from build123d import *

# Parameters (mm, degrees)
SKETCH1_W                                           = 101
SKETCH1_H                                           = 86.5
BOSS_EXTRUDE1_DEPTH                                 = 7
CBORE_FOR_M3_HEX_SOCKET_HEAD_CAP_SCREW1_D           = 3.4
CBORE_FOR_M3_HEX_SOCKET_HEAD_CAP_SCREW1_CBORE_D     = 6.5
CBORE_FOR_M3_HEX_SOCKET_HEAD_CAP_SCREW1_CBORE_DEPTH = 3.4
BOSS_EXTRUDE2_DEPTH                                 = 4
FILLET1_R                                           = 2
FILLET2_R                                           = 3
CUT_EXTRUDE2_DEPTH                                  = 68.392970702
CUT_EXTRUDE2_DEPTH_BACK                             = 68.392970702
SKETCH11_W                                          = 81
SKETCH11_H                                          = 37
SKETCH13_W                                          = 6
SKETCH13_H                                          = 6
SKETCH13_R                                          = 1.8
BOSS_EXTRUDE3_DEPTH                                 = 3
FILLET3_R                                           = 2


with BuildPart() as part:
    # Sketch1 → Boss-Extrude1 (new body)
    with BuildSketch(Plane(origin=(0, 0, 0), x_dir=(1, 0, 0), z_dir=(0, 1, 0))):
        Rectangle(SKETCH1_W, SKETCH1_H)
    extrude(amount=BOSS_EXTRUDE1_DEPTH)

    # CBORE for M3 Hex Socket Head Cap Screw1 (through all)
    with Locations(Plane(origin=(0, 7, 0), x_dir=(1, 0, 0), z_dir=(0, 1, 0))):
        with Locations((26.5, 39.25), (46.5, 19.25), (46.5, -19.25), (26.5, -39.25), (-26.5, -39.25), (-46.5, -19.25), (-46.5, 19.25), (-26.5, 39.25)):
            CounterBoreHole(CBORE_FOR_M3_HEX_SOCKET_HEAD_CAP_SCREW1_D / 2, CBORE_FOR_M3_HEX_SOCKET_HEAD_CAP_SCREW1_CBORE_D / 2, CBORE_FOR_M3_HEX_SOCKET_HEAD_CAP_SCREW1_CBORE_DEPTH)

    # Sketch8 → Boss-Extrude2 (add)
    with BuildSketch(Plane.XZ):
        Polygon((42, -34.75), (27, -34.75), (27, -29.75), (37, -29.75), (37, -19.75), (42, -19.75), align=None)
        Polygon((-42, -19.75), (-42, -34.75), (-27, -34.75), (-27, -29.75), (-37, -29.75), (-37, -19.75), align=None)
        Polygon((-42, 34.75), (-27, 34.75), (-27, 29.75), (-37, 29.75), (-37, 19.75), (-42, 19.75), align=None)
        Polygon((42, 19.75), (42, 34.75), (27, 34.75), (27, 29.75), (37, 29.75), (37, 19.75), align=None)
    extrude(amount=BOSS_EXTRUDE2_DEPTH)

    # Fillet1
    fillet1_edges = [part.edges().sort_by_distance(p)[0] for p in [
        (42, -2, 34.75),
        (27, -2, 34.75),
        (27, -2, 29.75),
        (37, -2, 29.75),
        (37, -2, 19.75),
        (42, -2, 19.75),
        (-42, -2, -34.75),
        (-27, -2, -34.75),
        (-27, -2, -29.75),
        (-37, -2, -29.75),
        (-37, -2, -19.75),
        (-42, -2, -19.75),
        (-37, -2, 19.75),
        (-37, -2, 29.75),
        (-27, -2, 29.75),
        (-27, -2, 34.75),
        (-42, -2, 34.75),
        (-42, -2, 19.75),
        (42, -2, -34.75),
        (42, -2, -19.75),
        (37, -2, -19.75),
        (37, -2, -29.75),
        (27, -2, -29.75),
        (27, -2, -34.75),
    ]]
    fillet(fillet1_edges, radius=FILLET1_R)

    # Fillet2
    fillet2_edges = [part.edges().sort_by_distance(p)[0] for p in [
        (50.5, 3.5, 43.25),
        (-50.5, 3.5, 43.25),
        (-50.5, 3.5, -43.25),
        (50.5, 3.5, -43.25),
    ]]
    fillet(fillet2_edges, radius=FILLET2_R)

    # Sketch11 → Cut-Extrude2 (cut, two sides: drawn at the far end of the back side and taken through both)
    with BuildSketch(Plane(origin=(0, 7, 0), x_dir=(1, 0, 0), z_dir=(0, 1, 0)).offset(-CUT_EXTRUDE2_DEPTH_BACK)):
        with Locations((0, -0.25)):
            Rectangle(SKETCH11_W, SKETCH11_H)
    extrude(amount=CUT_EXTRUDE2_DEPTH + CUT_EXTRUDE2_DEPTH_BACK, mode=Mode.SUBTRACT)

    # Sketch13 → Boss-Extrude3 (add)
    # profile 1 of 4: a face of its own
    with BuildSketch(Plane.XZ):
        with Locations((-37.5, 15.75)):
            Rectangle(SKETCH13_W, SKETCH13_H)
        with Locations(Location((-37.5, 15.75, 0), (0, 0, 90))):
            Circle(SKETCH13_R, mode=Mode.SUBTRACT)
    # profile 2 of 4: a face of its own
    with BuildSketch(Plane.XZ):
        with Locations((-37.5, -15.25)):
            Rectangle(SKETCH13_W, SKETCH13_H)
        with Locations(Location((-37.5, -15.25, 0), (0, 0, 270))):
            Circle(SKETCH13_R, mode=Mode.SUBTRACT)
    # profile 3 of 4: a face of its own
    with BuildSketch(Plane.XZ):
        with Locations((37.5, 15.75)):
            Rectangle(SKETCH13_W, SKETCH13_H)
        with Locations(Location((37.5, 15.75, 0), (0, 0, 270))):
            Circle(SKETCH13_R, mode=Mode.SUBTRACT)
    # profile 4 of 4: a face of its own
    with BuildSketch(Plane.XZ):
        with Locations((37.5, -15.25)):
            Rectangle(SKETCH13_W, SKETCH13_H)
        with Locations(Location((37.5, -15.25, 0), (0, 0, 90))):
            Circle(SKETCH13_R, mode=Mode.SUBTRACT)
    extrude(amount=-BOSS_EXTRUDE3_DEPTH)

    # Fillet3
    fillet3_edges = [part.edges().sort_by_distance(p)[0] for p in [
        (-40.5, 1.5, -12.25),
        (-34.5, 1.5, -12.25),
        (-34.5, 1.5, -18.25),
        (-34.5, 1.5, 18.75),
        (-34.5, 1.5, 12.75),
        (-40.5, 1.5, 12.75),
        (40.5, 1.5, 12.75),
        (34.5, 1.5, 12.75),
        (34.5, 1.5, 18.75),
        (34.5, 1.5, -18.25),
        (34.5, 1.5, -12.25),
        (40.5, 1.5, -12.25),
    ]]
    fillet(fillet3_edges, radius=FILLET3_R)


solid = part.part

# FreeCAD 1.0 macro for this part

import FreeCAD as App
import Part
import Sketcher
from FreeCAD import Vector


def edges_at(feature, points):
    """Names of the edges that pass closest to the given points."""
    edges = feature.Shape.Edges
    near = lambda p: min(range(len(edges)), key=lambda i: edges[i].distToShape(Part.Vertex(*p))[0])
    return sorted({f"Edge{near(p) + 1}" for p in points})


def add_polygon(sketch, points):
    """Adds a closed chain of lines whose ends are joined by coincident constraints."""
    first, n = sketch.GeometryCount, len(points)
    for a, b in zip(points, points[1:] + points[:1]):
        sketch.addGeometry(Part.LineSegment(App.Vector(*a, 0), App.Vector(*b, 0)), False)
    for i in range(n):
        sketch.addConstraint(Sketcher.Constraint("Coincident", first + i, 2, first + (i + 1) % n, 1))

doc = App.newDocument("Part")
body = doc.addObject("PartDesign::Body", "Body")

sketch1 = body.newObject("Sketcher::SketchObject", "Sketch")
sketch1.AttachmentSupport = (doc.getObject("XZ_Plane"), [""])
sketch1.MapMode = "FlatFace"
add_polygon(sketch1, [(-50.5, -43.25), (-50.5, 43.25), (50.5, 43.25), (50.5, -43.25)])
sketch1.addConstraint([
    Sketcher.Constraint("Vertical", 0),
    Sketcher.Constraint("Horizontal", 1),
    Sketcher.Constraint("Vertical", 2),
    Sketcher.Constraint("Horizontal", 3),
    Sketcher.Constraint("Symmetric", 0, 2, 2, 2, -1, 1),
    Sketcher.Constraint("DistanceX", 1, 1, 1, 2, 101.0),
    Sketcher.Constraint("DistanceY", 0, 1, 0, 2, 86.5),
])
pad1 = body.newObject("PartDesign::Pad", "Pad")
pad1.Profile = sketch1
pad1.Length = 7
pad1.Reversed = True

sketch2 = body.newObject("Sketcher::SketchObject", "Sketch001")
sketch2.AttachmentSupport = (doc.getObject("XZ_Plane"), [""])
sketch2.MapMode = "FlatFace"
sketch2.AttachmentOffset = App.Placement(Vector(0, 0, -7), App.Rotation())
sketch2.addGeometry([
    Part.Circle(Vector(26.5, -39.25, 0), Vector(0, 0, 1), 1.7),
    Part.Circle(Vector(46.5, -19.25, 0), Vector(0, 0, 1), 1.7),
    Part.Circle(Vector(46.5, 19.25, 0), Vector(0, 0, 1), 1.7),
    Part.Circle(Vector(26.5, 39.25, 0), Vector(0, 0, 1), 1.7),
    Part.Circle(Vector(-26.5, 39.25, 0), Vector(0, 0, 1), 1.7),
    Part.Circle(Vector(-46.5, 19.25, 0), Vector(0, 0, 1), 1.7),
    Part.Circle(Vector(-46.5, -19.25, 0), Vector(0, 0, 1), 1.7),
    Part.Circle(Vector(-26.5, -39.25, 0), Vector(0, 0, 1), 1.7),
], False)
sketch2.addConstraint([
    Sketcher.Constraint("Equal", 0, 1),
    Sketcher.Constraint("Equal", 1, 2),
    Sketcher.Constraint("Equal", 2, 3),
    Sketcher.Constraint("Equal", 3, 4),
    Sketcher.Constraint("Equal", 4, 5),
    Sketcher.Constraint("Equal", 5, 6),
    Sketcher.Constraint("Equal", 6, 7),
    Sketcher.Constraint("Symmetric", 0, 3, 4, 3, -1, 1),
    Sketcher.Constraint("Symmetric", 1, 3, 5, 3, -1, 1),
    Sketcher.Constraint("Symmetric", 2, 3, 6, 3, -1, 1),
    Sketcher.Constraint("Symmetric", 3, 3, 7, 3, -1, 1),
    Sketcher.Constraint("Symmetric", 3, 3, 4, 3, -2),
    Sketcher.Constraint("Symmetric", 2, 3, 5, 3, -2),
    Sketcher.Constraint("Diameter", 0, 3.4),
    Sketcher.Constraint("DistanceX", 0, 3, 1, 3, 20.0),
    Sketcher.Constraint("DistanceY", 0, 3, 1, 3, 20.0),
    Sketcher.Constraint("DistanceX", 4, 3, 3, 3, 53.0),
    Sketcher.Constraint("DistanceY", 1, 3, 2, 3, 38.5),
])
doc.recompute()
hole = body.newObject("PartDesign::Hole", "Hole")
hole.Profile = sketch2
hole.ThreadType = "None"
hole.Diameter = 3.4
hole.DepthType = "ThroughAll"
hole.HoleCutType = "Counterbore"
hole.HoleCutDiameter = 6.5
hole.HoleCutDepth = 3.4
hole.Reversed = True

sketch3 = body.newObject("Sketcher::SketchObject", "Sketch002")
sketch3.AttachmentSupport = (doc.getObject("XZ_Plane"), [""])
sketch3.MapMode = "FlatFace"
add_polygon(sketch3, [(27, -34.75), (42, -34.75), (42, -19.75), (37, -19.75), (37, -29.75), (27, -29.75)])
add_polygon(sketch3, [(-42, -19.75), (-42, -34.75), (-27, -34.75), (-27, -29.75), (-37, -29.75), (-37, -19.75)])
add_polygon(sketch3, [(-27, 34.75), (-42, 34.75), (-42, 19.75), (-37, 19.75), (-37, 29.75), (-27, 29.75)])
add_polygon(sketch3, [(42, 19.75), (42, 34.75), (27, 34.75), (27, 29.75), (37, 29.75), (37, 19.75)])
sketch3.addConstraint([
    Sketcher.Constraint("Horizontal", 0),
    Sketcher.Constraint("Vertical", 1),
    Sketcher.Constraint("Horizontal", 2),
    Sketcher.Constraint("Vertical", 3),
    Sketcher.Constraint("Horizontal", 4),
    Sketcher.Constraint("Vertical", 5),
    Sketcher.Constraint("Vertical", 6),
    Sketcher.Constraint("Horizontal", 7),
    Sketcher.Constraint("Vertical", 8),
    Sketcher.Constraint("Horizontal", 9),
    Sketcher.Constraint("Vertical", 10),
    Sketcher.Constraint("Horizontal", 11),
    Sketcher.Constraint("Horizontal", 12),
    Sketcher.Constraint("Vertical", 13),
    Sketcher.Constraint("Horizontal", 14),
    Sketcher.Constraint("Vertical", 15),
    Sketcher.Constraint("Horizontal", 16),
    Sketcher.Constraint("Vertical", 17),
    Sketcher.Constraint("Vertical", 18),
    Sketcher.Constraint("Horizontal", 19),
    Sketcher.Constraint("Vertical", 20),
    Sketcher.Constraint("Horizontal", 21),
    Sketcher.Constraint("Vertical", 22),
    Sketcher.Constraint("Horizontal", 23),
    Sketcher.Constraint("Symmetric", 0, 2, 12, 2, -1, 1),
    Sketcher.Constraint("Symmetric", 2, 2, 14, 2, -1, 1),
    Sketcher.Constraint("Symmetric", 4, 2, 16, 2, -1, 1),
    Sketcher.Constraint("Symmetric", 6, 2, 18, 2, -1, 1),
    Sketcher.Constraint("Symmetric", 8, 2, 20, 2, -1, 1),
    Sketcher.Constraint("Symmetric", 10, 2, 22, 2, -1, 1),
    Sketcher.Constraint("Symmetric", 0, 2, 6, 2, -2),
    Sketcher.Constraint("Symmetric", 4, 2, 8, 2, -2),
    Sketcher.Constraint("Symmetric", 2, 2, 10, 2, -2),
    Sketcher.Constraint("Equal", 19, 1),
    Sketcher.Constraint("Equal", 21, 3),
    Sketcher.Constraint("DistanceX", 0, 1, 0, 2, 15.0),
    Sketcher.Constraint("DistanceX", 2, 2, 2, 1, 5.0),
    Sketcher.Constraint("DistanceX", -1, 1, 0, 2, 42.0),
    Sketcher.Constraint("DistanceY", 11, 2, 12, 2, 54.5),
])
pad2 = body.newObject("PartDesign::Pad", "Pad001")
pad2.Profile = sketch3
pad2.Length = 4
doc.recompute()

fillet = body.newObject("PartDesign::Fillet", "Fillet")
fillet.Base = (pad2, edges_at(pad2, [
    (42, -2, 34.75),
    (27, -2, 34.75),
    (27, -2, 29.75),
    (37, -2, 29.75),
    (37, -2, 19.75),
    (42, -2, 19.75),
    (-42, -2, -34.75),
    (-27, -2, -34.75),
    (-27, -2, -29.75),
    (-37, -2, -29.75),
    (-37, -2, -19.75),
    (-42, -2, -19.75),
    (-37, -2, 19.75),
    (-37, -2, 29.75),
    (-27, -2, 29.75),
    (-27, -2, 34.75),
    (-42, -2, 34.75),
    (-42, -2, 19.75),
    (42, -2, -34.75),
    (42, -2, -19.75),
    (37, -2, -19.75),
    (37, -2, -29.75),
    (27, -2, -29.75),
    (27, -2, -34.75),
]))
fillet.Radius = 2
doc.recompute()

fillet2 = body.newObject("PartDesign::Fillet", "Fillet001")
fillet2.Base = (fillet, edges_at(fillet, [
    (50.5, 3.5, 43.25),
    (-50.5, 3.5, 43.25),
    (-50.5, 3.5, -43.25),
    (50.5, 3.5, -43.25),
]))
fillet2.Radius = 3

sketch4 = body.newObject("Sketcher::SketchObject", "Sketch003")
sketch4.AttachmentSupport = (doc.getObject("XZ_Plane"), [""])
sketch4.MapMode = "FlatFace"
sketch4.AttachmentOffset = App.Placement(Vector(0, 0, -7), App.Rotation())
add_polygon(sketch4, [(-40.5, -18.25), (-40.5, 18.75), (40.5, 18.75), (40.5, -18.25)])
sketch4.addConstraint([
    Sketcher.Constraint("Vertical", 0),
    Sketcher.Constraint("Horizontal", 1),
    Sketcher.Constraint("Vertical", 2),
    Sketcher.Constraint("Horizontal", 3),
    Sketcher.Constraint("DistanceX", 1, 1, 1, 2, 81.0),
    Sketcher.Constraint("DistanceY", 0, 1, 0, 2, 37.0),
    Sketcher.Constraint("DistanceX", 0, 2, -1, 1, 40.5),
    Sketcher.Constraint("DistanceY", -1, 1, 0, 2, 18.75),
])
pocket1 = body.newObject("PartDesign::Pocket", "Pocket")
pocket1.Profile = sketch4
pocket1.Type = "ThroughAll"
pocket1.Midplane = True

sketch5 = body.newObject("Sketcher::SketchObject", "Sketch004")
sketch5.AttachmentSupport = (doc.getObject("XZ_Plane"), [""])
sketch5.MapMode = "FlatFace"
add_polygon(sketch5, [(-40.5, 18.75), (-40.5, 12.75), (-34.5, 12.75), (-34.5, 18.75)])
sketch5.addGeometry(Part.Circle(Vector(-37.5, 15.75, 0), Vector(0, 0, 1), 1.8), False)
add_polygon(sketch5, [(-40.5, -12.25), (-40.5, -18.25), (-34.5, -18.25), (-34.5, -12.25)])
sketch5.addGeometry(Part.Circle(Vector(-37.5, -15.25, 0), Vector(0, 0, 1), 1.8), False)
add_polygon(sketch5, [(34.5, 18.75), (34.5, 12.75), (40.5, 12.75), (40.5, 18.75)])
sketch5.addGeometry(Part.Circle(Vector(37.5, 15.75, 0), Vector(0, 0, 1), 1.8), False)
add_polygon(sketch5, [(34.5, -12.25), (34.5, -18.25), (40.5, -18.25), (40.5, -12.25)])
sketch5.addGeometry(Part.Circle(Vector(37.5, -15.25, 0), Vector(0, 0, 1), 1.8), False)
sketch5.addConstraint([
    Sketcher.Constraint("Vertical", 0),
    Sketcher.Constraint("Horizontal", 1),
    Sketcher.Constraint("Vertical", 2),
    Sketcher.Constraint("Horizontal", 3),
    Sketcher.Constraint("Vertical", 5),
    Sketcher.Constraint("Horizontal", 6),
    Sketcher.Constraint("Vertical", 7),
    Sketcher.Constraint("Horizontal", 8),
    Sketcher.Constraint("Vertical", 10),
    Sketcher.Constraint("Horizontal", 11),
    Sketcher.Constraint("Vertical", 12),
    Sketcher.Constraint("Horizontal", 13),
    Sketcher.Constraint("Vertical", 15),
    Sketcher.Constraint("Horizontal", 16),
    Sketcher.Constraint("Vertical", 17),
    Sketcher.Constraint("Horizontal", 18),
    Sketcher.Constraint("Equal", 4, 9),
    Sketcher.Constraint("Equal", 9, 14),
    Sketcher.Constraint("Equal", 14, 19),
    Sketcher.Constraint("Symmetric", 4, 3, 14, 3, -2),
    Sketcher.Constraint("Symmetric", 9, 3, 19, 3, -2),
    Sketcher.Constraint("Symmetric", 1, 2, 10, 2, -2),
    Sketcher.Constraint("Symmetric", 3, 2, 12, 2, -2),
    Sketcher.Constraint("Symmetric", 6, 2, 15, 2, -2),
    Sketcher.Constraint("Symmetric", 8, 2, 17, 2, -2),
    Sketcher.Constraint("Vertical", 4, 3, 9, 3),
    Sketcher.Constraint("Vertical", 3, 2, 5, 2),
    Sketcher.Constraint("Vertical", 2, 2, 6, 2),
    Sketcher.Constraint("Equal", 18, 0),
    Sketcher.Constraint("Equal", 2, 5),
    Sketcher.Constraint("Diameter", 4, 3.6),
    Sketcher.Constraint("DistanceX", 1, 1, 1, 2, 6.0),
    Sketcher.Constraint("DistanceY", 9, 3, 4, 3, 31.0),
    Sketcher.Constraint("DistanceX", 4, 3, 14, 3, 75.0),
    Sketcher.Constraint("DistanceX", 0, 2, 4, 3, 3.0),
    Sketcher.Constraint("DistanceY", 0, 2, 4, 3, 3.0),
    Sketcher.Constraint("DistanceY", 5, 2, 9, 3, 3.0),
    Sketcher.Constraint("DistanceY", -1, 1, 4, 3, 15.75),
])
pad3 = body.newObject("PartDesign::Pad", "Pad002")
pad3.Profile = sketch5
pad3.Length = 3
pad3.Reversed = True
doc.recompute()

fillet3 = body.newObject("PartDesign::Fillet", "Fillet002")
fillet3.Base = (pad3, edges_at(pad3, [
    (-40.5, 1.5, -12.25),
    (-34.5, 1.5, -12.25),
    (-34.5, 1.5, -18.25),
    (-34.5, 1.5, 18.75),
    (-34.5, 1.5, 12.75),
    (-40.5, 1.5, 12.75),
    (40.5, 1.5, 12.75),
    (34.5, 1.5, 12.75),
    (34.5, 1.5, 18.75),
    (34.5, 1.5, -18.25),
    (34.5, 1.5, -12.25),
    (40.5, 1.5, -12.25),
]))
fillet3.Radius = 2

doc.recompute()
